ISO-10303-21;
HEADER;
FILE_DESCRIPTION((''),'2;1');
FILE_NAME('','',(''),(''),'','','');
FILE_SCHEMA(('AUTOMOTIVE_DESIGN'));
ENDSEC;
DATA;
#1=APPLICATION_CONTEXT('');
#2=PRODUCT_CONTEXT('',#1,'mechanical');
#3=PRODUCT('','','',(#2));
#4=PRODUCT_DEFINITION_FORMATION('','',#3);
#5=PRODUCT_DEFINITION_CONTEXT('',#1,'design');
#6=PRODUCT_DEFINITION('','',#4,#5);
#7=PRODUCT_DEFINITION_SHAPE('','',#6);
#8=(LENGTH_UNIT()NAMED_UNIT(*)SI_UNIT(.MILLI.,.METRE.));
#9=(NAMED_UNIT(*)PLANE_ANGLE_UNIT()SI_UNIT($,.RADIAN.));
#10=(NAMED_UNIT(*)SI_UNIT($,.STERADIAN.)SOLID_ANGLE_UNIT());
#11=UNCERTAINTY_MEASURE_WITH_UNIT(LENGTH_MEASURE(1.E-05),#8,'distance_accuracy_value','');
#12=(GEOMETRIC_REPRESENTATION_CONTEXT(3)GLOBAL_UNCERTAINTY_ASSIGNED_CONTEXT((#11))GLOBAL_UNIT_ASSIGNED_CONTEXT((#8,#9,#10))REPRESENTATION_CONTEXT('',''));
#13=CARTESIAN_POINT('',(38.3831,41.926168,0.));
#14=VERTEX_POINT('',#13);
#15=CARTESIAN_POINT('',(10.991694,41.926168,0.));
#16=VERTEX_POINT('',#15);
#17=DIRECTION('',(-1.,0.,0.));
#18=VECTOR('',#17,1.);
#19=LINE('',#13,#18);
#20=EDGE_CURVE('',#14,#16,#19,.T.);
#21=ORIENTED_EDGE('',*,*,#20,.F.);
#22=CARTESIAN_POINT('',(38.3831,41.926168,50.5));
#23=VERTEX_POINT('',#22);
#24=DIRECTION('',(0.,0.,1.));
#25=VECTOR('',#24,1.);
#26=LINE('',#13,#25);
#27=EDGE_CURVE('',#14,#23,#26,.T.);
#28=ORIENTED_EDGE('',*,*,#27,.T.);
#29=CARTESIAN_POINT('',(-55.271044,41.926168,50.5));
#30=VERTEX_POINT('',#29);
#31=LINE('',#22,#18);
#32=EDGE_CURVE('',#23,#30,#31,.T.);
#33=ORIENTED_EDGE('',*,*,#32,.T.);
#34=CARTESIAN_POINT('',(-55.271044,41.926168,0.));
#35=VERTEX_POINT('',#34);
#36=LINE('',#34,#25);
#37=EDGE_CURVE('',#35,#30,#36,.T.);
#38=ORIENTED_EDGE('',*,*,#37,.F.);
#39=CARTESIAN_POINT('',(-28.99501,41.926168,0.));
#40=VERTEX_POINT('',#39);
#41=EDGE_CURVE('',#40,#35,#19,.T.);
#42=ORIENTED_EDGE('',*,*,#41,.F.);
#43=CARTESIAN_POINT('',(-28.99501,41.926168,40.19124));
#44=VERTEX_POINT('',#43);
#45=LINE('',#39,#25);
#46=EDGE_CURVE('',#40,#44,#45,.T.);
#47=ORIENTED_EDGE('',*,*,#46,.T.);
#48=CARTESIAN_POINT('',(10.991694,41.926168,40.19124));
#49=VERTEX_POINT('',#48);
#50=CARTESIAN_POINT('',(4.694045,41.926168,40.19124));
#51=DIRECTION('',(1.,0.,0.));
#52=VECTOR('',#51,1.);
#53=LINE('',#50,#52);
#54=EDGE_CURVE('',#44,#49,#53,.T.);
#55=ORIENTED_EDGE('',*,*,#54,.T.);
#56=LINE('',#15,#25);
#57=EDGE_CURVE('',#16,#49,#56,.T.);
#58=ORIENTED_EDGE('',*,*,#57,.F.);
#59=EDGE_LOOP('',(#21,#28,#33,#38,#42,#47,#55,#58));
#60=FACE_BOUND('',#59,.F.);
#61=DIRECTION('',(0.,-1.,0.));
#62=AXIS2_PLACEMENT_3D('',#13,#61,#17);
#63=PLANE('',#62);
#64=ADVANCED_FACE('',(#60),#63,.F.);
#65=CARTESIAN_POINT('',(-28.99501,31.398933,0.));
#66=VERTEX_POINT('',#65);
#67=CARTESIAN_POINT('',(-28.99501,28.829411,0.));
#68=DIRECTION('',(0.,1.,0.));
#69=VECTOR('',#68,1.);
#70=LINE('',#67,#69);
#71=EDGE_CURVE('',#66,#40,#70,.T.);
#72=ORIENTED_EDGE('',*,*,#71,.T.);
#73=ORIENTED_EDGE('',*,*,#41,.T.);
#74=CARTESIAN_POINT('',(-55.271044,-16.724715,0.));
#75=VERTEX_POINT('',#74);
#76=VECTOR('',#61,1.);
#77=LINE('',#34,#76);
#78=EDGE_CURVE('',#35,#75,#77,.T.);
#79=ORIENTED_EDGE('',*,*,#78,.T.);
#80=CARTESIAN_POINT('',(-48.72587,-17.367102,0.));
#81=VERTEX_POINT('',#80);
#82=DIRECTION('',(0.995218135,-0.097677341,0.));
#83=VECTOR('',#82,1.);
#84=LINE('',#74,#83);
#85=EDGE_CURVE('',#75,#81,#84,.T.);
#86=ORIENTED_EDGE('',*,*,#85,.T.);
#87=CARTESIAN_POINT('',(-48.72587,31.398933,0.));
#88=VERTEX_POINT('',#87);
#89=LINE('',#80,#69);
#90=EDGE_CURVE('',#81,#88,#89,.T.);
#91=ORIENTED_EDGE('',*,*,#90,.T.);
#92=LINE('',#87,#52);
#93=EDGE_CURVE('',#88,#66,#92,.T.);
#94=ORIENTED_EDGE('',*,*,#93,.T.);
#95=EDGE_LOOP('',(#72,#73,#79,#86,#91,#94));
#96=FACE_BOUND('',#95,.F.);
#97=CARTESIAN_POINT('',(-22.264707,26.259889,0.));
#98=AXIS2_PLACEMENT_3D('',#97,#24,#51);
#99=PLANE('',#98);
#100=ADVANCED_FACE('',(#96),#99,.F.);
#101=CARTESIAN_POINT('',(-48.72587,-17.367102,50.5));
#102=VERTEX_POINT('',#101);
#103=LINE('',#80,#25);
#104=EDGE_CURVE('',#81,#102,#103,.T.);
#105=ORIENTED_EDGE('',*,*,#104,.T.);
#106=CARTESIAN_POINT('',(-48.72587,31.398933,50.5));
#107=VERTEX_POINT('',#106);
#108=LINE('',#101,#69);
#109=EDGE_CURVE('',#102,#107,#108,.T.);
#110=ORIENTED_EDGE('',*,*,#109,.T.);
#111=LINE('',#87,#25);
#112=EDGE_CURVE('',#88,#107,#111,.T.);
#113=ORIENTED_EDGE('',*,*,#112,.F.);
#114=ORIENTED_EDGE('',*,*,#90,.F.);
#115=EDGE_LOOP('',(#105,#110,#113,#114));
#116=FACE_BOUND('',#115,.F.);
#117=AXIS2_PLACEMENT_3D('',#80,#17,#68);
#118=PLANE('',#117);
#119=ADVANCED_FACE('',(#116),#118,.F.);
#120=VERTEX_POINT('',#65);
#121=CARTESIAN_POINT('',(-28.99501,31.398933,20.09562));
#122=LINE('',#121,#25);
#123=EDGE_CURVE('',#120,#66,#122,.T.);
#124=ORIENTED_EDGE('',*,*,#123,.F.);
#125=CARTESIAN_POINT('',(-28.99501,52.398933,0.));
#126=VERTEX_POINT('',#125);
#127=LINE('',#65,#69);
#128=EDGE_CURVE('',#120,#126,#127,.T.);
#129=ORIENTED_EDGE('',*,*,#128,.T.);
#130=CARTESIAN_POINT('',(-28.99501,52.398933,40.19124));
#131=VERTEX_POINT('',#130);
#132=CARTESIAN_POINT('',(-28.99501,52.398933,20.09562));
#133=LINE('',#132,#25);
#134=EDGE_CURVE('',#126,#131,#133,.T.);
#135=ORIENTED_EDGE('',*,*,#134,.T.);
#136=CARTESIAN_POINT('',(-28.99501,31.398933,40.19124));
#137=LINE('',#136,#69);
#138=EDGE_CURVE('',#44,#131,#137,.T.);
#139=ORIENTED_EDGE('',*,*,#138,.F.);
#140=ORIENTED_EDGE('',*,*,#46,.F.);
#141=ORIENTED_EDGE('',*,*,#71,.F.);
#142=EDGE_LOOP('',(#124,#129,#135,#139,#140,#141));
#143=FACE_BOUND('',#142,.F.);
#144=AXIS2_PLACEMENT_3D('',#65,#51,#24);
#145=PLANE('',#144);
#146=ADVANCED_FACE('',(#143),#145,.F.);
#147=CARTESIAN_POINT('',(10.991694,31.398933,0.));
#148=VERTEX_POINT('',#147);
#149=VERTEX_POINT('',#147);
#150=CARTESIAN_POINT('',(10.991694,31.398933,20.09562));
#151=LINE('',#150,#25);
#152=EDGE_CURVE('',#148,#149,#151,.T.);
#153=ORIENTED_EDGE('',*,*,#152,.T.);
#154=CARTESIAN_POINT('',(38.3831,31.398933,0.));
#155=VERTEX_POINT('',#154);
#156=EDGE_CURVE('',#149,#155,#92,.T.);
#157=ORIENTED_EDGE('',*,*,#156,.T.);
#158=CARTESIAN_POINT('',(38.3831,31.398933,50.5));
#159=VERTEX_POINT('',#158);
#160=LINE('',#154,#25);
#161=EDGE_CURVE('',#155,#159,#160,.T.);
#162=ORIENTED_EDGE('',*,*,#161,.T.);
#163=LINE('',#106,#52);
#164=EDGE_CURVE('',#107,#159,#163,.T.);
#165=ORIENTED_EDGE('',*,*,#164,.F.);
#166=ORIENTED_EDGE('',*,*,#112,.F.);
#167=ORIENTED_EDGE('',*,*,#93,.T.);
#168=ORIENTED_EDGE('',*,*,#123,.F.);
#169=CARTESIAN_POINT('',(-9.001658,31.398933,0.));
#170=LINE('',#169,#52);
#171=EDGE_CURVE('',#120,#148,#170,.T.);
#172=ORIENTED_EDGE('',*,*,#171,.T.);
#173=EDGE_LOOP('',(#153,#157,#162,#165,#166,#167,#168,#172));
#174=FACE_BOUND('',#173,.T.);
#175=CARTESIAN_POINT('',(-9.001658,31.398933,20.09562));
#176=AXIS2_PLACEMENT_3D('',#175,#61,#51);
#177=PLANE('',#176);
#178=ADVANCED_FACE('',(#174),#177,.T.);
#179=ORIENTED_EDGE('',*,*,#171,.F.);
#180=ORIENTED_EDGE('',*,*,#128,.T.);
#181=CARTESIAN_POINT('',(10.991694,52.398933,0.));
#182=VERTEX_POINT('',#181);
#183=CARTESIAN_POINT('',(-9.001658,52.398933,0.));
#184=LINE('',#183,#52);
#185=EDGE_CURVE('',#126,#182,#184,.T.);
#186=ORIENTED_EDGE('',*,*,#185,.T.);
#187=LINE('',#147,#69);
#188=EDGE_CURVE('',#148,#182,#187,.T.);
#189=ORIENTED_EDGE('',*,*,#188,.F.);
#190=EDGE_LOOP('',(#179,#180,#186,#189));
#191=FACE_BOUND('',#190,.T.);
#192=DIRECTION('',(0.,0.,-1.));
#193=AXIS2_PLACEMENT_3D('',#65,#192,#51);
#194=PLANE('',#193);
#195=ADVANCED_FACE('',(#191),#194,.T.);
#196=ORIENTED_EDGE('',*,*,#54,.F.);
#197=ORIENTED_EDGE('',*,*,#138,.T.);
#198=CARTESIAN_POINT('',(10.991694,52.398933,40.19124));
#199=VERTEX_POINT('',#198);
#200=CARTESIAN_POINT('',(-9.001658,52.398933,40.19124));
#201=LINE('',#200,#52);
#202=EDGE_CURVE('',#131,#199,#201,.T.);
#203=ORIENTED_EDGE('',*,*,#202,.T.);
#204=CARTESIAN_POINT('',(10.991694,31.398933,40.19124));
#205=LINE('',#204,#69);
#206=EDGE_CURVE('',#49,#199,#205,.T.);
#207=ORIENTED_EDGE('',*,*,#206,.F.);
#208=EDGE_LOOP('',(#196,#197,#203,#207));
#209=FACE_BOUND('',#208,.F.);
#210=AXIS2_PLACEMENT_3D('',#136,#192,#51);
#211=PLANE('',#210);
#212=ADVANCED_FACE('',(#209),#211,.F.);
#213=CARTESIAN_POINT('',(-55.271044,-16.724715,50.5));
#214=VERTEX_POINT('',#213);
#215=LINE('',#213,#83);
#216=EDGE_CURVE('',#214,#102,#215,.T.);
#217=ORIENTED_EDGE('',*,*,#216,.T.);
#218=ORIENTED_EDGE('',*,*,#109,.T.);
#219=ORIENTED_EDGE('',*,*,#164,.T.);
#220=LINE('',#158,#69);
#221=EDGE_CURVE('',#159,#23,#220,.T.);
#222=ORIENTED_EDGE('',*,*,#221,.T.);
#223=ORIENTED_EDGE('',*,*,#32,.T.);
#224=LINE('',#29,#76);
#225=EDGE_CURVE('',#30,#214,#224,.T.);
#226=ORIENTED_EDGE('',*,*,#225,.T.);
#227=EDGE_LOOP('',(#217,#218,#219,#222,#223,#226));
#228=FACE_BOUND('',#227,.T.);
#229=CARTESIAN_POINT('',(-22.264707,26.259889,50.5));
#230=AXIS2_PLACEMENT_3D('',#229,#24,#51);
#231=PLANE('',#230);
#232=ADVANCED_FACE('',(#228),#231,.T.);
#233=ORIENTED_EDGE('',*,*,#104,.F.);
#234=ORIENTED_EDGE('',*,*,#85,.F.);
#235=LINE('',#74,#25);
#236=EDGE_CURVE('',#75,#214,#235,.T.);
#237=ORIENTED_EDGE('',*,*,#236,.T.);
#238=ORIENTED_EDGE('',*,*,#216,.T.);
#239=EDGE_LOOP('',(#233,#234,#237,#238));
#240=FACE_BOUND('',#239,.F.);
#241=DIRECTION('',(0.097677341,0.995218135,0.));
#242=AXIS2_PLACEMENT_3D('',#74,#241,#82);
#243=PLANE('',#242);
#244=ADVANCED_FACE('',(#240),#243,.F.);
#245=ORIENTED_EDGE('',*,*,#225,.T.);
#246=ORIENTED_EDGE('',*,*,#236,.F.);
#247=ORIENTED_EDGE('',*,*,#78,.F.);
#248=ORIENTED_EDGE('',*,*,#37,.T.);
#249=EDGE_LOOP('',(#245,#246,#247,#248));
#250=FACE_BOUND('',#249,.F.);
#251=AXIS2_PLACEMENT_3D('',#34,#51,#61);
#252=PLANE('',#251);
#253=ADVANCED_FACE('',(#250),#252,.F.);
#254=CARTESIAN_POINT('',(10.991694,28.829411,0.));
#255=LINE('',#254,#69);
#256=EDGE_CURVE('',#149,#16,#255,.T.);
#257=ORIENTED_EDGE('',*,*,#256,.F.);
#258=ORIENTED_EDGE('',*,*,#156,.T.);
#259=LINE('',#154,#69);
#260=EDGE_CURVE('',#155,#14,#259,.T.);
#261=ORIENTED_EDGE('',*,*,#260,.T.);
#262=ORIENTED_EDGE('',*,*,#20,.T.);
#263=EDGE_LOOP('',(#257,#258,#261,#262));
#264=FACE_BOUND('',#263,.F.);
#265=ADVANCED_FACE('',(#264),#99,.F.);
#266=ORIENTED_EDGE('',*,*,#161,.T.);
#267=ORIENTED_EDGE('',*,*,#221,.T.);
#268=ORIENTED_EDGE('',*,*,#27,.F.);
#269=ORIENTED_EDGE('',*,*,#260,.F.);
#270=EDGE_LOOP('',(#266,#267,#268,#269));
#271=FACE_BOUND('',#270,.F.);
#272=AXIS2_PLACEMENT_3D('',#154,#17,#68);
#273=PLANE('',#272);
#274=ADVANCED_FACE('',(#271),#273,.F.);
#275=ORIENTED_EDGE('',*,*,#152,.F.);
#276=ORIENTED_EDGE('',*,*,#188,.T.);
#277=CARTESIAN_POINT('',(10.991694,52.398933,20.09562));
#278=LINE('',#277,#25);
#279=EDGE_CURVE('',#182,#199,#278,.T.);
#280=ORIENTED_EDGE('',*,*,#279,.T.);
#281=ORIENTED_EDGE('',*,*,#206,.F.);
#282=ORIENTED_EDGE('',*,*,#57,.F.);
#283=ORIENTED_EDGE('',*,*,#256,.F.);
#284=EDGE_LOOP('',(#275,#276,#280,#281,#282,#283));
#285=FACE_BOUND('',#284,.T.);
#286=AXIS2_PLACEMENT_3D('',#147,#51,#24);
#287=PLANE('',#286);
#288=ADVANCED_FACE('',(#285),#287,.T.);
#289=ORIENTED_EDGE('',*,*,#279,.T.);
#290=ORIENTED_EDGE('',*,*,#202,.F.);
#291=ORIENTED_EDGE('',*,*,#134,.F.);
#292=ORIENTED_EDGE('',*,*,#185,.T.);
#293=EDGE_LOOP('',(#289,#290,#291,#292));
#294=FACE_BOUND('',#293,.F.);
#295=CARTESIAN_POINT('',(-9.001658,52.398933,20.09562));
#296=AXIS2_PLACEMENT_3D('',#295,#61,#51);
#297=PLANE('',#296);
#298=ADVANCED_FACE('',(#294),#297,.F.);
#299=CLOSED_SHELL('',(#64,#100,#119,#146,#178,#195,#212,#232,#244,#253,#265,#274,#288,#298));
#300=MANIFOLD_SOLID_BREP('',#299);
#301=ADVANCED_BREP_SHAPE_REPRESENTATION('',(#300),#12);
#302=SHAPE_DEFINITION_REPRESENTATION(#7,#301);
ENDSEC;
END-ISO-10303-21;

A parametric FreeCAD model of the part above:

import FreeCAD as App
import Part
import Sketcher

V = App.Vector

doc = App.newDocument("Part")
body = doc.addObject("PartDesign::Body", "Body")

# Sketch on XY plane
sketch1 = doc.addObject("Sketcher::SketchObject", "Sketch")
body.addObject(sketch1)
sketch1.AttachmentSupport = (doc.XY_Plane, [""])
sketch1.MapMode = "FlatFace"
sketch1.addGeometry(Part.LineSegment(V(-55, 42, 0), V(-55, -17, 0)), False)
sketch1.addGeometry(Part.LineSegment(V(-55, -17, 0), V(-49, -17, 0)), False)
sketch1.addGeometry(Part.LineSegment(V(-49, -17, 0), V(-49, 31, 0)), False)
sketch1.addGeometry(Part.LineSegment(V(-49, 31, 0), V(38, 31, 0)), False)
sketch1.addGeometry(Part.LineSegment(V(38, 31, 0), V(38, 42, 0)), False)
sketch1.addGeometry(Part.LineSegment(V(38, 42, 0), V(-55, 42, 0)), False)
sketch1.addConstraint(Sketcher.Constraint("Coincident", 0, 2, 1, 1))
sketch1.addConstraint(Sketcher.Constraint("Coincident", 1, 2, 2, 1))
sketch1.addConstraint(Sketcher.Constraint("Coincident", 2, 2, 3, 1))
sketch1.addConstraint(Sketcher.Constraint("Coincident", 3, 2, 4, 1))
sketch1.addConstraint(Sketcher.Constraint("Coincident", 4, 2, 5, 1))
sketch1.addConstraint(Sketcher.Constraint("Coincident", 5, 2, 0, 1))
sketch1.addConstraint(Sketcher.Constraint("Vertical", 0))
sketch1.addConstraint(Sketcher.Constraint("Vertical", 2))
sketch1.addConstraint(Sketcher.Constraint("Horizontal", 3))
sketch1.addConstraint(Sketcher.Constraint("Vertical", 4))
sketch1.addConstraint(Sketcher.Constraint("Horizontal", 5))
sketch1.addConstraint(Sketcher.Constraint("DistanceX", 3, 1, 3, 2, 87.10897))
sketch1.addConstraint(Sketcher.Constraint("DistanceY", 1, 2, -1, 1, 17.367102))
sketch1.addConstraint(Sketcher.Constraint("DistanceX", -1, 1, 3, 2, 38.3831))
sketch1.addConstraint(Sketcher.Constraint("DistanceX", 5, 2, 5, 1, 93.654144))
sketch1.addConstraint(Sketcher.Constraint("DistanceY", 0, 2, 0, 1, 58.650883))
sketch1.addConstraint(Sketcher.Constraint("DistanceY", 2, 1, 2, 2, 48.766035))
sketch1.addConstraint(Sketcher.Constraint("DistanceY", 4, 1, 4, 2, 10.527235))
pad1 = doc.addObject("PartDesign::Pad", "Pad")
body.addObject(pad1)
pad1.Profile = sketch1
pad1.Length = 50.5

# Sketch on XZ plane
sketch2 = doc.addObject("Sketcher::SketchObject", "Sketch001")
body.addObject(sketch2)
sketch2.AttachmentSupport = (doc.XZ_Plane, [""])
sketch2.MapMode = "FlatFace"
sketch2.AttachmentOffset = App.Placement(V(0, 0, -31.398933), App.Rotation())
sketch2.addGeometry(Part.LineSegment(V(-29, 40, 0), V(-29, 0, 0)), False)
sketch2.addGeometry(Part.LineSegment(V(-29, 0, 0), V(11, 0, 0)), False)
sketch2.addGeometry(Part.LineSegment(V(11, 0, 0), V(11, 40, 0)), False)
sketch2.addGeometry(Part.LineSegment(V(11, 40, 0), V(-29, 40, 0)), False)
sketch2.addConstraint(Sketcher.Constraint("Coincident", 0, 2, 1, 1))
sketch2.addConstraint(Sketcher.Constraint("Coincident", 1, 2, 2, 1))
sketch2.addConstraint(Sketcher.Constraint("Coincident", 2, 2, 3, 1))
sketch2.addConstraint(Sketcher.Constraint("Coincident", 3, 2, 0, 1))
sketch2.addConstraint(Sketcher.Constraint("Vertical", 0))
sketch2.addConstraint(Sketcher.Constraint("Horizontal", 1))
sketch2.addConstraint(Sketcher.Constraint("Vertical", 2))
sketch2.addConstraint(Sketcher.Constraint("Horizontal", 3))
sketch2.addConstraint(Sketcher.Constraint("PointOnObject", 0, 2, -1))
sketch2.addConstraint(Sketcher.Constraint("DistanceY", 0, 2, 0, 1, 40.191241))
sketch2.addConstraint(Sketcher.Constraint("DistanceX", 1, 1, 1, 2, 39.986705))
sketch2.addConstraint(Sketcher.Constraint("DistanceX", 0, 2, -1, 1, 28.99501))
pad2 = doc.addObject("PartDesign::Pad", "Pad001")
body.addObject(pad2)
pad2.Profile = sketch2
pad2.Length = 21
pad2.Reversed = True

doc.recompute()
